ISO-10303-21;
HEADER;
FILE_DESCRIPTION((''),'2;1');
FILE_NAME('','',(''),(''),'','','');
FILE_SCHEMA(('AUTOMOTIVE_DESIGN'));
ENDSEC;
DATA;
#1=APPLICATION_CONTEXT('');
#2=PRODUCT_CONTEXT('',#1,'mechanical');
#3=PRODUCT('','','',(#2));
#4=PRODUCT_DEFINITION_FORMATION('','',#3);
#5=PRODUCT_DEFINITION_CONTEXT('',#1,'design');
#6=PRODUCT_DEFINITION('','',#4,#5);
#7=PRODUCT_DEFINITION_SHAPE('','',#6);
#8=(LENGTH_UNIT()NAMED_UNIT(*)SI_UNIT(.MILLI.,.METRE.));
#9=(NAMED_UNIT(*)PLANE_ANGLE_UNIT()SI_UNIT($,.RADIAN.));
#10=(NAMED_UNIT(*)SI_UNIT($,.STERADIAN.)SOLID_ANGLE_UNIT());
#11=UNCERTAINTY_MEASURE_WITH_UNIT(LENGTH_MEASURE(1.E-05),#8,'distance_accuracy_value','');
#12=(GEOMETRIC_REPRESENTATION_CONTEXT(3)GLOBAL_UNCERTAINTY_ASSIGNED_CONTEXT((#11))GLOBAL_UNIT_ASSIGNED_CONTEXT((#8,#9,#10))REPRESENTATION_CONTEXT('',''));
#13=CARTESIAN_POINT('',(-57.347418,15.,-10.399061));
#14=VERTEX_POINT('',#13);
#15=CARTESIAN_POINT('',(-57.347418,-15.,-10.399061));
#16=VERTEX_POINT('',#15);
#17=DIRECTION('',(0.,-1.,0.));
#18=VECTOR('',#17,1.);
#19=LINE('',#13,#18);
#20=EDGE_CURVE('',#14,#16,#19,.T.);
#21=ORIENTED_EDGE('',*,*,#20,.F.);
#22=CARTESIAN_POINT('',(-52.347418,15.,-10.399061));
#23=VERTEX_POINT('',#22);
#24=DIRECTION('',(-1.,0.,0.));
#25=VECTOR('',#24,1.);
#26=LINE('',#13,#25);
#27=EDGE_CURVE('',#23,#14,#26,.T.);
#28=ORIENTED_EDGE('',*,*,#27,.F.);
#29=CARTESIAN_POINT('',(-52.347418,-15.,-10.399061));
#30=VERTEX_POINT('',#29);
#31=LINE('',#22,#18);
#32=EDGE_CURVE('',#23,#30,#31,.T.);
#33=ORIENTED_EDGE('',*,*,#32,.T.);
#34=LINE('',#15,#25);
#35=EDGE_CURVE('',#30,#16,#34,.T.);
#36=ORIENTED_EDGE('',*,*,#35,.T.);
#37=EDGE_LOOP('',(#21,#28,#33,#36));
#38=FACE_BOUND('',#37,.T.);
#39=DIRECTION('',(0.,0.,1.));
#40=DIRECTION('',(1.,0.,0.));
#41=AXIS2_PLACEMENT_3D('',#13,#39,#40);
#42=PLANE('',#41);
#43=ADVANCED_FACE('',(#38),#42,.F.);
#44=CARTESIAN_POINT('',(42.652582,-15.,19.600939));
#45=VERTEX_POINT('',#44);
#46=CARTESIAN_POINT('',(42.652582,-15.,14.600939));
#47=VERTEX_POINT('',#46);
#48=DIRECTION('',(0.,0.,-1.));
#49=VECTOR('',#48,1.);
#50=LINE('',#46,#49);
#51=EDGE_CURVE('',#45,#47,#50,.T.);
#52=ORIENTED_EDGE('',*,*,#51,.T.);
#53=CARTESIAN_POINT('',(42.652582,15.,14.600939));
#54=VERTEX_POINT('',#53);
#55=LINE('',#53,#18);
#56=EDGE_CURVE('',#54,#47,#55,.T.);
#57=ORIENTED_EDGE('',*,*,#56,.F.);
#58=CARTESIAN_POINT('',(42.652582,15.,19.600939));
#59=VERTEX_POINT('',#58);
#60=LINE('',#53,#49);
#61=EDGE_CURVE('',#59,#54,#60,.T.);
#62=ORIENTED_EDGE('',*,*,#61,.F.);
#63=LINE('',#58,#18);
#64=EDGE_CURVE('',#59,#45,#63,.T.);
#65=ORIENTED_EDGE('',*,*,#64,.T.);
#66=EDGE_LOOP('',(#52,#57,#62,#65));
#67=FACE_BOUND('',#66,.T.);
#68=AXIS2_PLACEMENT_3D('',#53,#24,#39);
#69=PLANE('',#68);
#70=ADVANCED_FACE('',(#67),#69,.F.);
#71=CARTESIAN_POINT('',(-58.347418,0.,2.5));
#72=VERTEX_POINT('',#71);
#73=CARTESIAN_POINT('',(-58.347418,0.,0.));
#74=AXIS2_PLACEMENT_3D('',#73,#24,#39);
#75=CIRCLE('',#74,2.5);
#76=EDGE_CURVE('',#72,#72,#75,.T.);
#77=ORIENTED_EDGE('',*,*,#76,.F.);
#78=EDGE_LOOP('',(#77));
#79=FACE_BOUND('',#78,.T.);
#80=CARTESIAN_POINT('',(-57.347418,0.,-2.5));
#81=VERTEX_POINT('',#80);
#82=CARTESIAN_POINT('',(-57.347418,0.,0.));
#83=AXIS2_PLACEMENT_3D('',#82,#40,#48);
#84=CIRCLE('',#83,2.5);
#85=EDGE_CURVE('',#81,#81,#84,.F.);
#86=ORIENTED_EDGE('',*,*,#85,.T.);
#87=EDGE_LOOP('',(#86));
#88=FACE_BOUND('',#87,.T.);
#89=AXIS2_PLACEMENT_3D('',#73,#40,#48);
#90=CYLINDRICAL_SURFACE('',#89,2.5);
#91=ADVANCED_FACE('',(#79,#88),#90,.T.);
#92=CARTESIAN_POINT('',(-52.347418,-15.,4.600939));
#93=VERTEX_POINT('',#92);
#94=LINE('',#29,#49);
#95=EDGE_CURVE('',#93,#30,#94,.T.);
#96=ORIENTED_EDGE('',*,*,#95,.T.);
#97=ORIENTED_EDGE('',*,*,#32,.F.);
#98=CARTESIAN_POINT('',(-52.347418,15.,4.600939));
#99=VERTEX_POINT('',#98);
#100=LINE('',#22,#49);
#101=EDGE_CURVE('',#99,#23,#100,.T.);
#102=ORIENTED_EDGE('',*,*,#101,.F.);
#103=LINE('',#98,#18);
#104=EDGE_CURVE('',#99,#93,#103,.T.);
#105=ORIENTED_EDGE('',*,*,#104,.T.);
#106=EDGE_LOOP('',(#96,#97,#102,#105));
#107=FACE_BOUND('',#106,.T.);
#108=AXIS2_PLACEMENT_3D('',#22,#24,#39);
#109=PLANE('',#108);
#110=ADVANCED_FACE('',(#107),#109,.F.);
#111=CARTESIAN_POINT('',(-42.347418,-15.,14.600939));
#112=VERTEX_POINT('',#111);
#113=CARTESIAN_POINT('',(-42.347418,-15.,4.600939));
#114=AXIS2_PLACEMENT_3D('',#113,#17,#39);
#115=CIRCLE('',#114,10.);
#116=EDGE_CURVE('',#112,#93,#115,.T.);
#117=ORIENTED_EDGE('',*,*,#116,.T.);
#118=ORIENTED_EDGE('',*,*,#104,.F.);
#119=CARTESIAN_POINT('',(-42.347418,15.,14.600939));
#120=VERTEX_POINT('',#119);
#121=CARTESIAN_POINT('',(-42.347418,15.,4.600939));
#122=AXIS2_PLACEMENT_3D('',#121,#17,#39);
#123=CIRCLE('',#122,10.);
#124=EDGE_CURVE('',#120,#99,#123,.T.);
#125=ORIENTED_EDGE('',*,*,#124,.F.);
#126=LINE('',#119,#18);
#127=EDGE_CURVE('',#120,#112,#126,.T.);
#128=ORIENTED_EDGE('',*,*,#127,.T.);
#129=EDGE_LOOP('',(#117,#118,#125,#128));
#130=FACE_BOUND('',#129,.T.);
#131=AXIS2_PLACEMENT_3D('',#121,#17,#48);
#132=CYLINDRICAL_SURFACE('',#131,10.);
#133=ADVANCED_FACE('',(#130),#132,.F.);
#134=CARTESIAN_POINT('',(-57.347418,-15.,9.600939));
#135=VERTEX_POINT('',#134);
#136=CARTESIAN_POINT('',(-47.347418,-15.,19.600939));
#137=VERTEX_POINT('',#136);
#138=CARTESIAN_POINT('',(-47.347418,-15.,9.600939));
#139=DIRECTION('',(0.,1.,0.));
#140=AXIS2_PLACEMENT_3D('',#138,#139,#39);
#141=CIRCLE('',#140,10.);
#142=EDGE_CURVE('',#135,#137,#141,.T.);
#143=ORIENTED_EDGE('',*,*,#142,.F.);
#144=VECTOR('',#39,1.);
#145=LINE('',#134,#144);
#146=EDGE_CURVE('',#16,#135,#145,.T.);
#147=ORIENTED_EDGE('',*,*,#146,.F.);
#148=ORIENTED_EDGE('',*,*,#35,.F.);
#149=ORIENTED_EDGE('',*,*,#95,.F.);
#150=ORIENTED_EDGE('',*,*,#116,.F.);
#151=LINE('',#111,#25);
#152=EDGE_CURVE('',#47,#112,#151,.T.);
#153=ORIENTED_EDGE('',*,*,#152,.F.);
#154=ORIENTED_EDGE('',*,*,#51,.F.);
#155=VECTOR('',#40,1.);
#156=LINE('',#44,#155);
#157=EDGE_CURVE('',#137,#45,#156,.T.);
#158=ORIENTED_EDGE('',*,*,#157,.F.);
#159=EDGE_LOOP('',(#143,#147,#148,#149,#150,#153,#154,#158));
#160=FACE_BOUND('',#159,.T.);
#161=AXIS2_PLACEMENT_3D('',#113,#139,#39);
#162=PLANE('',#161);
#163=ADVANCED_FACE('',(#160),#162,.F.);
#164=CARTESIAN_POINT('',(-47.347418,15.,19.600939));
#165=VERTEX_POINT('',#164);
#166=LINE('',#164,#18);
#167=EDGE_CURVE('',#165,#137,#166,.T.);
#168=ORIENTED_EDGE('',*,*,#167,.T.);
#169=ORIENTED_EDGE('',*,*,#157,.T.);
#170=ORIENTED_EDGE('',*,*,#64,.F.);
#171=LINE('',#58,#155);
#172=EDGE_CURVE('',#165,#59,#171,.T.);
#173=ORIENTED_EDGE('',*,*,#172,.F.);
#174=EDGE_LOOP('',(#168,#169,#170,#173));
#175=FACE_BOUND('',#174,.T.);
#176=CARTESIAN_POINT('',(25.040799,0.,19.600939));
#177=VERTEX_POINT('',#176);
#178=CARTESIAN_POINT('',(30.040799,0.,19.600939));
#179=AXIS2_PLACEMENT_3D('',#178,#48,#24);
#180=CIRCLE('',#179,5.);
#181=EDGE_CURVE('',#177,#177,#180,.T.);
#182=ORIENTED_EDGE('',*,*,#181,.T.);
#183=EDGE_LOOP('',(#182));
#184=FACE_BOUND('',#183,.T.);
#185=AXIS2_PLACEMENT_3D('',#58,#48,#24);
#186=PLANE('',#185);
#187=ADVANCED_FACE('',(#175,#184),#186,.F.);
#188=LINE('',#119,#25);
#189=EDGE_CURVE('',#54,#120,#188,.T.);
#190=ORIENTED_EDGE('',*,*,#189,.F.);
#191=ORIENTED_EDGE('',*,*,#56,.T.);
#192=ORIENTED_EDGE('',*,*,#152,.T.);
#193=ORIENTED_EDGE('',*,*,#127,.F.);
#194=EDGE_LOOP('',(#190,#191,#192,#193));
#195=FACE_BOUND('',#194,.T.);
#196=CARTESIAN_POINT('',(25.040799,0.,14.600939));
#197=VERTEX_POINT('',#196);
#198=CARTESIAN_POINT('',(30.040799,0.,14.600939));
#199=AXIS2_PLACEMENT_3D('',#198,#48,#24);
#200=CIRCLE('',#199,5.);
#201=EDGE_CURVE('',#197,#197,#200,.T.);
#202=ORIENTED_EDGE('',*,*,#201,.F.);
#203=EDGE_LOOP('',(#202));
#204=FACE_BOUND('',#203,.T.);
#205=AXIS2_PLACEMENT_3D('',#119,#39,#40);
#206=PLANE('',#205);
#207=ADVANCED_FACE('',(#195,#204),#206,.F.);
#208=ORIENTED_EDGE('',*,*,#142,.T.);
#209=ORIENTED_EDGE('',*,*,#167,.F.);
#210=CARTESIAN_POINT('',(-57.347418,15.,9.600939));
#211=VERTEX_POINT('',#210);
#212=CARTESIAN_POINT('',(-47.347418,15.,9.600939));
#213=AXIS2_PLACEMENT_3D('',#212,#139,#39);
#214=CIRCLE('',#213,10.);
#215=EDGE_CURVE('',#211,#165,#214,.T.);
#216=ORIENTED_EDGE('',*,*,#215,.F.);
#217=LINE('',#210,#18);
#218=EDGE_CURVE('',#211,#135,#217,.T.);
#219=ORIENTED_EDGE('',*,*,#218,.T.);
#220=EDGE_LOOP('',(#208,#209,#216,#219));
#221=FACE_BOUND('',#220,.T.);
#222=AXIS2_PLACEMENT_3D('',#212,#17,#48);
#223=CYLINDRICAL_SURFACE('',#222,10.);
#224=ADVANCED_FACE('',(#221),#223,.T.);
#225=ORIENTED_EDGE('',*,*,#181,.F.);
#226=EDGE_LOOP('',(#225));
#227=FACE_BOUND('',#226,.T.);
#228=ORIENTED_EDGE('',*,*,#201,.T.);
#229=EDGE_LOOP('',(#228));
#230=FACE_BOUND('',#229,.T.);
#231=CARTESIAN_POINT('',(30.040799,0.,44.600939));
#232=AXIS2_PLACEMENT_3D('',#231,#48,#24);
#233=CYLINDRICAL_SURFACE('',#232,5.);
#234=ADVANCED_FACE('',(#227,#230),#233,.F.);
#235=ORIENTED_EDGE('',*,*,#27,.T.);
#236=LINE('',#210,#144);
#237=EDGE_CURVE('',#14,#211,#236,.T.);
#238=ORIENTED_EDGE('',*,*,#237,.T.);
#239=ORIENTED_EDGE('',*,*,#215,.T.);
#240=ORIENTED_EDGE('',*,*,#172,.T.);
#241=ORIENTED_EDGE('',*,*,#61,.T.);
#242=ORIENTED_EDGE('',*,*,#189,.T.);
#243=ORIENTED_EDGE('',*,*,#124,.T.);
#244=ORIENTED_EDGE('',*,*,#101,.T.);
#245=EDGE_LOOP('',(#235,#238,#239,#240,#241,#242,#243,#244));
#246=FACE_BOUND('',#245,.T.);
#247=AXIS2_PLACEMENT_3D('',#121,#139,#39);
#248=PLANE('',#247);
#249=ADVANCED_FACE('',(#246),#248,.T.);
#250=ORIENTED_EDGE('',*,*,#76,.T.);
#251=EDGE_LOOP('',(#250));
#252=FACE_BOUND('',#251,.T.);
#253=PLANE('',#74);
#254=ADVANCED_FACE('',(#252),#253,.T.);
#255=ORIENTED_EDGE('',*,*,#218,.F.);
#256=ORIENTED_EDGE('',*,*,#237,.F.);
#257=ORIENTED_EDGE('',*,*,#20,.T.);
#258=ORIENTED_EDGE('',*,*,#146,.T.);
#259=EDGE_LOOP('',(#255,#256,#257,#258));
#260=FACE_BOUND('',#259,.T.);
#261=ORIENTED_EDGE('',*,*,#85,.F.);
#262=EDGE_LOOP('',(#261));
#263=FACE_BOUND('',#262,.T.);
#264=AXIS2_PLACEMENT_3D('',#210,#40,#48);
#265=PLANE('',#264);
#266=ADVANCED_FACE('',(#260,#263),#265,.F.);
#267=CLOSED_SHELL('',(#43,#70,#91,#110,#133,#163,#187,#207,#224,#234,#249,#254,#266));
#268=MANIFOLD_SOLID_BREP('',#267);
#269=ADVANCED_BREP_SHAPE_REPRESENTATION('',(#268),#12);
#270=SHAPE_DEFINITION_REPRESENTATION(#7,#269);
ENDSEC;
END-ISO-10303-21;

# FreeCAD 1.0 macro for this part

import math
import FreeCAD as App
import Part
import Sketcher
from FreeCAD import Vector
Q = App.Units.Quantity

doc = App.newDocument("Part")
body = doc.addObject("PartDesign::Body", "Body")

# Sketch on XZ plane
sketch1 = body.newObject("Sketcher::SketchObject", "Sketch")
sketch1.AttachmentSupport = (doc.getObject("XZ_Plane"), [""])
sketch1.MapMode = "FlatFace"
sketch1.addGeometry(Part.LineSegment(Vector(-52.347418, -10.399061, 0), Vector(-57.347418, -10.399061, 0)), False)
sketch1.addGeometry(Part.LineSegment(Vector(-57.347418, -10.399061, 0), Vector(-57.347418, 9.600939, 0)), False)
sketch1.addGeometry(Part.ArcOfCircle(Part.Circle(Vector(-47.347418, 9.600939, 0), Vector(0, 0, 1), 10), math.radians(90), math.radians(180)), False)
sketch1.addGeometry(Part.LineSegment(Vector(-47.347418, 19.600939, 0), Vector(42.652582, 19.600939, 0)), False)
sketch1.addGeometry(Part.LineSegment(Vector(42.652582, 19.600939, 0), Vector(42.652582, 14.600939, 0)), False)
sketch1.addGeometry(Part.LineSegment(Vector(42.652582, 14.600939, 0), Vector(-42.347418, 14.600939, 0)), False)
sketch1.addGeometry(Part.ArcOfCircle(Part.Circle(Vector(-42.347418, 4.600939, 0), Vector(0, 0, 1), 10), math.radians(90), math.radians(180)), False)
sketch1.addGeometry(Part.LineSegment(Vector(-52.347418, 4.600939, 0), Vector(-52.347418, -10.399061, 0)), False)
sketch1.addConstraint(Sketcher.Constraint("Coincident", 0, 2, 1, 1))
sketch1.addConstraint(Sketcher.Constraint("Tangent", 1, 2, 2, 2))
sketch1.addConstraint(Sketcher.Constraint("Tangent", 2, 1, 3, 1))
sketch1.addConstraint(Sketcher.Constraint("Coincident", 3, 2, 4, 1))
sketch1.addConstraint(Sketcher.Constraint("Coincident", 4, 2, 5, 1))
sketch1.addConstraint(Sketcher.Constraint("Tangent", 5, 2, 6, 1))
sketch1.addConstraint(Sketcher.Constraint("Tangent", 6, 2, 7, 1))
sketch1.addConstraint(Sketcher.Constraint("Coincident", 7, 2, 0, 1))
sketch1.addConstraint(Sketcher.Constraint("Horizontal", 0))
sketch1.addConstraint(Sketcher.Constraint("Vertical", 1))
sketch1.addConstraint(Sketcher.Constraint("Horizontal", 3))
sketch1.addConstraint(Sketcher.Constraint("Vertical", 4))
sketch1.addConstraint(Sketcher.Constraint("Horizontal", 5))
sketch1.addConstraint(Sketcher.Constraint("Vertical", 7))
sketch1.addConstraint(Sketcher.Constraint("Equal", 2, 6))
sketch1.addConstraint(Sketcher.Constraint("Equal", 0, 4))
sketch1.addConstraint(Sketcher.Constraint("Radius", 2, Q("10 mm")))
sketch1.addConstraint(Sketcher.Constraint("DistanceX", 0, 2, 0, 1, Q("5 mm")))
sketch1.addConstraint(Sketcher.Constraint("DistanceX", 3, 1, 3, 2, Q("90 mm")))
sketch1.addConstraint(Sketcher.Constraint("DistanceY", 1, 1, 1, 2, Q("20 mm")))
sketch1.addConstraint(Sketcher.Constraint("DistanceY", -1, 1, 2, 3, Q("9.600939 mm")))
sketch1.addConstraint(Sketcher.Constraint("DistanceX", 2, 3, -1, 1, Q("47.347418 mm")))
pad1 = body.newObject("PartDesign::Pad", "Pad")
pad1.Profile = sketch1
pad1.Length = 30
pad1.Midplane = True

# Sketch on XY plane
sketch2 = body.newObject("Sketcher::SketchObject", "Sketch001")
sketch2.AttachmentSupport = (doc.getObject("XY_Plane"), [""])
sketch2.MapMode = "FlatFace"
sketch2.AttachmentOffset = App.Placement(Vector(0, 0, 14.600939), App.Rotation())
sketch2.addGeometry(Part.Circle(Vector(30.040799, 0, 0), Vector(0, 0, 1), 5), False)
sketch2.addConstraint(Sketcher.Constraint("PointOnObject", 0, 3, -1))
sketch2.addConstraint(Sketcher.Constraint("Diameter", 0, Q("10 mm")))
sketch2.addConstraint(Sketcher.Constraint("DistanceX", -1, 1, 0, 3, Q("30.040799 mm")))
pocket1 = body.newObject("PartDesign::Pocket", "Pocket")
pocket1.Profile = sketch2
pocket1.Length = 30
pocket1.Reversed = True

# Sketch on YZ plane
sketch3 = body.newObject("Sketcher::SketchObject", "Sketch002")
sketch3.AttachmentSupport = (doc.getObject("YZ_Plane"), [""])
sketch3.MapMode = "FlatFace"
sketch3.AttachmentOffset = App.Placement(Vector(0, 0, -57.347418), App.Rotation())
sketch3.addGeometry(Part.Circle(Vector(0, 0, 0), Vector(0, 0, 1), 2.5), False)
sketch3.addConstraint(Sketcher.Constraint("Coincident", 0, 3, -1, 1))
sketch3.addConstraint(Sketcher.Constraint("Diameter", 0, Q("5 mm")))
pad2 = body.newObject("PartDesign::Pad", "Pad001")
pad2.Profile = sketch3
pad2.Length = 1
pad2.Reversed = True

doc.recompute()
